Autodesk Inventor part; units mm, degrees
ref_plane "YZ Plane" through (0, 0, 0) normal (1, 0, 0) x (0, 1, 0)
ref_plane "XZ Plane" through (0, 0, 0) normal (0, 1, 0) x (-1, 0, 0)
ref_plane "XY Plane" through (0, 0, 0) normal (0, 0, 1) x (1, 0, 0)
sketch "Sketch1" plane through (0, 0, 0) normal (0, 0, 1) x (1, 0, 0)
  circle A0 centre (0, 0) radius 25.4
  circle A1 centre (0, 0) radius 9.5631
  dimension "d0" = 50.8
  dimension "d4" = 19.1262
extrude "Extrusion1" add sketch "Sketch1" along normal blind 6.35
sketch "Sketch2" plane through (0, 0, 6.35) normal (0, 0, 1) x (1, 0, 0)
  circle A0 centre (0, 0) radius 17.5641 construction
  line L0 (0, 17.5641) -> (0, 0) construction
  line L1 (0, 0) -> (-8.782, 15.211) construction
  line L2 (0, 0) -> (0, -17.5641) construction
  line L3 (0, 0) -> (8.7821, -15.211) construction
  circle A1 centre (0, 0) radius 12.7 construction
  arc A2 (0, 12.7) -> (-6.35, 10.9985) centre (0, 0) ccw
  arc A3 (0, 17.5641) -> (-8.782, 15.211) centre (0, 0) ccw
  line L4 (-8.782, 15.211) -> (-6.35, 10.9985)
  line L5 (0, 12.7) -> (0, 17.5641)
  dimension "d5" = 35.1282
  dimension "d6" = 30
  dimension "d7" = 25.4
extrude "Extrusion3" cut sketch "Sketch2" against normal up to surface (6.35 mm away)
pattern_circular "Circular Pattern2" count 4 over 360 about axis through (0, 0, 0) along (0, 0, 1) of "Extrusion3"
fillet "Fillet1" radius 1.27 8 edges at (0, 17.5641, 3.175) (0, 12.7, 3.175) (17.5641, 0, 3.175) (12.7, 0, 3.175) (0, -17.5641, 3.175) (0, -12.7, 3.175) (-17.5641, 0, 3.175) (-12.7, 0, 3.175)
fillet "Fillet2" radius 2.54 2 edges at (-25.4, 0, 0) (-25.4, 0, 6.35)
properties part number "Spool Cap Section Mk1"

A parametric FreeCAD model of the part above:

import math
import FreeCAD as App
import Part
import Sketcher
from FreeCAD import Vector
Q = App.Units.Quantity


def edges_at(feature, points):
    """Names of the edges that pass closest to the given points."""
    edges = feature.Shape.Edges
    near = lambda p: min(range(len(edges)), key=lambda i: edges[i].distToShape(Part.Vertex(*p))[0])
    return sorted({f"Edge{near(p) + 1}" for p in points})

doc = App.newDocument("Part")
body = doc.addObject("PartDesign::Body", "Body")

sketch1 = doc.addObject("Sketcher::SketchObject", "Sketch")
body.addObject(sketch1)
sketch1.AttachmentSupport = (doc.XY_Plane, [""])
sketch1.MapMode = "FlatFace"
sketch1.addGeometry([
    Part.Circle(Vector(0, 0, 0), Vector(0, 0, 1), 25),
    Part.Circle(Vector(0, 0, 0), Vector(0, 0, 1), 10),
], False)
sketch1.addConstraint([
    Sketcher.Constraint("Coincident", 0, 3, -1, 1),
    Sketcher.Constraint("Coincident", 1, 3, -1, 1),
    Sketcher.Constraint("Diameter", 0, Q("2 in")),
    Sketcher.Constraint("Diameter", 1, Q("0.753 in")),
])
pad1 = doc.addObject("PartDesign::Pad", "Pad")
body.addObject(pad1)
pad1.Profile = sketch1
pad1.Length = Q("0.25 in")

sketch2 = doc.addObject("Sketcher::SketchObject", "Sketch001")
body.addObject(sketch2)
sketch2.AttachmentSupport = (doc.XY_Plane, [""])
sketch2.MapMode = "FlatFace"
sketch2.AttachmentOffset = App.Placement(Vector(0, 0, 0.25 * 25.4), App.Rotation())
sketch2.addGeometry([
    Part.ArcOfCircle(Part.Circle(Vector(0, 0, 0), Vector(0, 0, 1), 12.7), math.radians(90), math.radians(120)),
    Part.LineSegment(Vector(0, 12.7, 0), Vector(0, 17.6, 0)),
    Part.ArcOfCircle(Part.Circle(Vector(0, 0, 0), Vector(0, 0, 1), 17.6), math.radians(90), math.radians(120)),
    Part.LineSegment(Vector(-8.8, 15.2, 0), Vector(-6.3, 11, 0)),
], False)
sketch2.addConstraint([
    Sketcher.Constraint("Coincident", 0, 1, 1, 1),
    Sketcher.Constraint("Coincident", 1, 2, 2, 1),
    Sketcher.Constraint("Coincident", 2, 2, 3, 1),
    Sketcher.Constraint("Coincident", 3, 2, 0, 2),
    Sketcher.Constraint("Vertical", 1),
    Sketcher.Constraint("Coincident", 0, 3, -1, 1),
    Sketcher.Constraint("Coincident", 2, 3, -1, 1),
    Sketcher.Constraint("PointOnObject", 0, 1, -2),
    Sketcher.Constraint("Radius", 0, Q("0.5 in")),
    Sketcher.Constraint("Radius", 2, Q("0.6915 in")),
    Sketcher.Constraint("Angle", 3, Q("-60.001 deg")),
    Sketcher.Constraint("DistanceX", 3, 2, -1, 1, Q("0.25 in")),
])
pocket1 = doc.addObject("PartDesign::Pocket", "Pocket")
body.addObject(pocket1)
pocket1.Profile = sketch2
pocket1.Length = Q("0.25 in")
doc.recompute()

polarpattern = doc.addObject("PartDesign::PolarPattern", "PolarPattern")
body.addObject(polarpattern)
polarpattern.Originals = [pocket1]
polarpattern.Axis = (doc.Z_Axis, [""])
polarpattern.Angle = 360
polarpattern.Occurrences = 4
body.Tip = polarpattern
doc.recompute()

fillet = doc.addObject("PartDesign::Fillet", "Fillet")
body.addObject(fillet)
fillet.Base = (polarpattern, edges_at(polarpattern, [
    (0, 17.564, 3.175),
    (0, 12.7, 3.175),
    (17.564, 0, 3.175),
    (12.7, 0, 3.175),
    (0, -17.564, 3.175),
    (0, -12.7, 3.175),
    (-17.564, 0, 3.175),
    (-12.7, 0, 3.175),
]))
fillet.Radius = Q("0.05 in")
doc.recompute()

fillet2 = doc.addObject("PartDesign::Fillet", "Fillet001")
body.addObject(fillet2)
fillet2.Base = (fillet, edges_at(fillet, [(-25.4, 0, 0), (-25.4, 0, 6.35)]))
fillet2.Radius = Q("0.1 in")

doc.recompute()
